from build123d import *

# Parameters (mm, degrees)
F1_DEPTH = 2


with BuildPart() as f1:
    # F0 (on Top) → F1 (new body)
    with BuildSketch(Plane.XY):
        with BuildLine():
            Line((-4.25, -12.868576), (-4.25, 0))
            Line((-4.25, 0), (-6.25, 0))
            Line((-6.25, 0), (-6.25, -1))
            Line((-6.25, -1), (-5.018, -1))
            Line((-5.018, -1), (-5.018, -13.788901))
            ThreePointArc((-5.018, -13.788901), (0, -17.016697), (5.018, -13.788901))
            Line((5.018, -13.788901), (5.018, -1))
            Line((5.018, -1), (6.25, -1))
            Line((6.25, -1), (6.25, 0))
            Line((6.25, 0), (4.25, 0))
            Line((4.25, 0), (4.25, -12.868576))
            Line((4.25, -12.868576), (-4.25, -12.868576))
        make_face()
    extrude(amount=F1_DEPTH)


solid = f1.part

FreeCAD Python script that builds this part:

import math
import FreeCAD as App
import Part
import Sketcher
Q = App.Units.Quantity

doc = App.newDocument("Part")
body = doc.addObject("PartDesign::Body", "Body")

# Sketch on XY plane
sketch1 = body.newObject("Sketcher::SketchObject", "Sketch")
sketch1.AttachmentSupport = (doc.getObject("XY_Plane"), [""])
sketch1.MapMode = "FlatFace"
sketch1.addGeometry([
    Part.LineSegment(App.Vector(-4.2, -12.9, 0), App.Vector(-4.2, 0, 0)),  # 0
    Part.LineSegment(App.Vector(-4.2, 0, 0), App.Vector(-6.2, 0, 0)),  # 1
    Part.LineSegment(App.Vector(-6.2, 0, 0), App.Vector(-6.2, -1, 0)),  # 2
    Part.LineSegment(App.Vector(-6.2, -1, 0), App.Vector(-5, -1, 0)),  # 3
    Part.LineSegment(App.Vector(-5, -1, 0), App.Vector(-5, -13.8, 0)),  # 4
    Part.ArcOfCircle(Part.Circle(App.Vector(0, -11.5, 0), App.Vector(0, 0, 1), 5.5), math.radians(-156), math.radians(-24)),  # 5
    Part.LineSegment(App.Vector(5, -13.8, 0), App.Vector(5, -1, 0)),  # 6
    Part.LineSegment(App.Vector(5, -1, 0), App.Vector(6.2, -1, 0)),  # 7
    Part.LineSegment(App.Vector(6.2, -1, 0), App.Vector(6.2, 0, 0)),  # 8
    Part.LineSegment(App.Vector(6.2, 0, 0), App.Vector(4.2, 0, 0)),  # 9
    Part.LineSegment(App.Vector(4.2, 0, 0), App.Vector(4.2, -12.9, 0)),  # 10
    Part.LineSegment(App.Vector(4.2, -12.9, 0), App.Vector(-4.2, -12.9, 0)),  # 11
], False)
sketch1.addConstraint([
    Sketcher.Constraint("Coincident", 0, 2, 1, 1),
    Sketcher.Constraint("Coincident", 1, 2, 2, 1),
    Sketcher.Constraint("Coincident", 2, 2, 3, 1),
    Sketcher.Constraint("Coincident", 3, 2, 4, 1),
    Sketcher.Constraint("Coincident", 4, 2, 5, 1),
    Sketcher.Constraint("Coincident", 5, 2, 6, 1),
    Sketcher.Constraint("Coincident", 6, 2, 7, 1),
    Sketcher.Constraint("Coincident", 7, 2, 8, 1),
    Sketcher.Constraint("Coincident", 8, 2, 9, 1),
    Sketcher.Constraint("Coincident", 9, 2, 10, 1),
    Sketcher.Constraint("Coincident", 10, 2, 11, 1),
    Sketcher.Constraint("Coincident", 11, 2, 0, 1),
    Sketcher.Constraint("Vertical", 0),
    Sketcher.Constraint("Horizontal", 1),
    Sketcher.Constraint("Vertical", 2),
    Sketcher.Constraint("Horizontal", 3),
    Sketcher.Constraint("Vertical", 4),
    Sketcher.Constraint("Vertical", 6),
    Sketcher.Constraint("Horizontal", 7),
    Sketcher.Constraint("Vertical", 8),
    Sketcher.Constraint("Horizontal", 9),
    Sketcher.Constraint("Vertical", 10),
    Sketcher.Constraint("Horizontal", 11),
    Sketcher.Constraint("Symmetric", 1, 2, 8, 2, -1, 1),
    Sketcher.Constraint("Symmetric", 4, 2, 5, 2, -2),
    Sketcher.Constraint("Symmetric", 0, 2, 9, 2, -2),
    Sketcher.Constraint("Horizontal", 3, 2, 6, 2),
    Sketcher.Constraint("DistanceX", 1, 2, 1, 1, Q("2 mm")),
    Sketcher.Constraint("DistanceY", 2, 2, 2, 1, Q("1 mm")),
    Sketcher.Constraint("DistanceX", 11, 2, 11, 1, Q("8.5 mm")),
    Sketcher.Constraint("DistanceX", 3, 1, 3, 2, Q("1.232 mm")),
    Sketcher.Constraint("DistanceY", 4, 2, 4, 1, Q("12.788901 mm")),
    Sketcher.Constraint("Radius", 5, Q("5.514443 mm")),
    Sketcher.Constraint("DistanceY", 0, 1, 0, 2, Q("12.868576 mm")),
])
pad1 = body.newObject("PartDesign::Pad", "Pad")
pad1.Profile = sketch1
pad1.Length = 2

doc.recompute()
